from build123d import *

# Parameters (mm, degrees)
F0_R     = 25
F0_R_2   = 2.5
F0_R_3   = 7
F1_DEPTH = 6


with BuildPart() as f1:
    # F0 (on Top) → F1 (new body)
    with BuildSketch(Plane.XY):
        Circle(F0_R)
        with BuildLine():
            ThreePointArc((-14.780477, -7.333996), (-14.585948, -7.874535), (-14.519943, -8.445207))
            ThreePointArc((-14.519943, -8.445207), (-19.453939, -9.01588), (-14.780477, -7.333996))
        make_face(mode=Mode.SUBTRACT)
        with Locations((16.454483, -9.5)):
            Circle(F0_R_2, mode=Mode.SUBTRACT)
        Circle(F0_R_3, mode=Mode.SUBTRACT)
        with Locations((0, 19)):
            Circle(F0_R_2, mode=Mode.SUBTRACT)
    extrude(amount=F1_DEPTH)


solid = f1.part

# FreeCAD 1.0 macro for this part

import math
import FreeCAD as App
import Part
import Sketcher
Q = App.Units.Quantity

doc = App.newDocument("Part")
body = doc.addObject("PartDesign::Body", "Body")

sketch1 = body.newObject("Sketcher::SketchObject", "Sketch")
sketch1.AttachmentSupport = (doc.getObject("XY_Plane"), [""])
sketch1.MapMode = "FlatFace"
sketch1.addGeometry([
    Part.Circle(App.Vector(0, 0, 0), App.Vector(0, 0, 1), 25),
    Part.ArcOfCircle(Part.Circle(App.Vector(-17, -8.4, 0), App.Vector(0, 0, 1), 2.5), math.radians(26), math.radians(360)),
    Part.ArcOfCircle(Part.Circle(App.Vector(-17, -8.4, 0), App.Vector(0, 0, 1), 2.5), math.radians(0), math.radians(26)),
    Part.Circle(App.Vector(16.5, -9.5, 0), App.Vector(0, 0, 1), 2.5),
    Part.Circle(App.Vector(0, 0, 0), App.Vector(0, 0, 1), 7),
    Part.Circle(App.Vector(0, 19, 0), App.Vector(0, 0, 1), 2.5),
], False)
sketch1.addConstraint([
    Sketcher.Constraint("Tangent", 1, 1, 2, 2),
    Sketcher.Constraint("Coincident", 2, 1, 1, 2),
    Sketcher.Constraint("Coincident", 0, 3, -1, 1),
    Sketcher.Constraint("Coincident", 4, 3, -1, 1),
    Sketcher.Constraint("Equal", 1, 3),
    Sketcher.Constraint("Equal", 3, 5),
    Sketcher.Constraint("PointOnObject", 5, 3, -2),
    Sketcher.Constraint("Horizontal", 1, 3, 2, 1),
    Sketcher.Constraint("Diameter", 0, Q("50 mm")),
    Sketcher.Constraint("Diameter", 3, Q("5 mm")),
    Sketcher.Constraint("Diameter", 4, Q("14 mm")),
    Sketcher.Constraint("DistanceY", -1, 1, 5, 3, Q("19 mm")),
    Sketcher.Constraint("DistanceY", 3, 3, -1, 1, Q("9.5 mm")),
    Sketcher.Constraint("DistanceY", 1, 3, -1, 1, Q("8.445208 mm")),
    Sketcher.Constraint("DistanceX", 2, 3, -1, 1, Q("17.019948 mm")),
    Sketcher.Constraint("DistanceX", 2, 3, 3, 3, Q("33.474431 mm")),
    Sketcher.Constraint("DistanceX", 2, 3, 1, 1, Q("2.239471 mm")),
])
pad1 = body.newObject("PartDesign::Pad", "Pad")
pad1.Profile = sketch1
pad1.Length = 6

doc.recompute()
